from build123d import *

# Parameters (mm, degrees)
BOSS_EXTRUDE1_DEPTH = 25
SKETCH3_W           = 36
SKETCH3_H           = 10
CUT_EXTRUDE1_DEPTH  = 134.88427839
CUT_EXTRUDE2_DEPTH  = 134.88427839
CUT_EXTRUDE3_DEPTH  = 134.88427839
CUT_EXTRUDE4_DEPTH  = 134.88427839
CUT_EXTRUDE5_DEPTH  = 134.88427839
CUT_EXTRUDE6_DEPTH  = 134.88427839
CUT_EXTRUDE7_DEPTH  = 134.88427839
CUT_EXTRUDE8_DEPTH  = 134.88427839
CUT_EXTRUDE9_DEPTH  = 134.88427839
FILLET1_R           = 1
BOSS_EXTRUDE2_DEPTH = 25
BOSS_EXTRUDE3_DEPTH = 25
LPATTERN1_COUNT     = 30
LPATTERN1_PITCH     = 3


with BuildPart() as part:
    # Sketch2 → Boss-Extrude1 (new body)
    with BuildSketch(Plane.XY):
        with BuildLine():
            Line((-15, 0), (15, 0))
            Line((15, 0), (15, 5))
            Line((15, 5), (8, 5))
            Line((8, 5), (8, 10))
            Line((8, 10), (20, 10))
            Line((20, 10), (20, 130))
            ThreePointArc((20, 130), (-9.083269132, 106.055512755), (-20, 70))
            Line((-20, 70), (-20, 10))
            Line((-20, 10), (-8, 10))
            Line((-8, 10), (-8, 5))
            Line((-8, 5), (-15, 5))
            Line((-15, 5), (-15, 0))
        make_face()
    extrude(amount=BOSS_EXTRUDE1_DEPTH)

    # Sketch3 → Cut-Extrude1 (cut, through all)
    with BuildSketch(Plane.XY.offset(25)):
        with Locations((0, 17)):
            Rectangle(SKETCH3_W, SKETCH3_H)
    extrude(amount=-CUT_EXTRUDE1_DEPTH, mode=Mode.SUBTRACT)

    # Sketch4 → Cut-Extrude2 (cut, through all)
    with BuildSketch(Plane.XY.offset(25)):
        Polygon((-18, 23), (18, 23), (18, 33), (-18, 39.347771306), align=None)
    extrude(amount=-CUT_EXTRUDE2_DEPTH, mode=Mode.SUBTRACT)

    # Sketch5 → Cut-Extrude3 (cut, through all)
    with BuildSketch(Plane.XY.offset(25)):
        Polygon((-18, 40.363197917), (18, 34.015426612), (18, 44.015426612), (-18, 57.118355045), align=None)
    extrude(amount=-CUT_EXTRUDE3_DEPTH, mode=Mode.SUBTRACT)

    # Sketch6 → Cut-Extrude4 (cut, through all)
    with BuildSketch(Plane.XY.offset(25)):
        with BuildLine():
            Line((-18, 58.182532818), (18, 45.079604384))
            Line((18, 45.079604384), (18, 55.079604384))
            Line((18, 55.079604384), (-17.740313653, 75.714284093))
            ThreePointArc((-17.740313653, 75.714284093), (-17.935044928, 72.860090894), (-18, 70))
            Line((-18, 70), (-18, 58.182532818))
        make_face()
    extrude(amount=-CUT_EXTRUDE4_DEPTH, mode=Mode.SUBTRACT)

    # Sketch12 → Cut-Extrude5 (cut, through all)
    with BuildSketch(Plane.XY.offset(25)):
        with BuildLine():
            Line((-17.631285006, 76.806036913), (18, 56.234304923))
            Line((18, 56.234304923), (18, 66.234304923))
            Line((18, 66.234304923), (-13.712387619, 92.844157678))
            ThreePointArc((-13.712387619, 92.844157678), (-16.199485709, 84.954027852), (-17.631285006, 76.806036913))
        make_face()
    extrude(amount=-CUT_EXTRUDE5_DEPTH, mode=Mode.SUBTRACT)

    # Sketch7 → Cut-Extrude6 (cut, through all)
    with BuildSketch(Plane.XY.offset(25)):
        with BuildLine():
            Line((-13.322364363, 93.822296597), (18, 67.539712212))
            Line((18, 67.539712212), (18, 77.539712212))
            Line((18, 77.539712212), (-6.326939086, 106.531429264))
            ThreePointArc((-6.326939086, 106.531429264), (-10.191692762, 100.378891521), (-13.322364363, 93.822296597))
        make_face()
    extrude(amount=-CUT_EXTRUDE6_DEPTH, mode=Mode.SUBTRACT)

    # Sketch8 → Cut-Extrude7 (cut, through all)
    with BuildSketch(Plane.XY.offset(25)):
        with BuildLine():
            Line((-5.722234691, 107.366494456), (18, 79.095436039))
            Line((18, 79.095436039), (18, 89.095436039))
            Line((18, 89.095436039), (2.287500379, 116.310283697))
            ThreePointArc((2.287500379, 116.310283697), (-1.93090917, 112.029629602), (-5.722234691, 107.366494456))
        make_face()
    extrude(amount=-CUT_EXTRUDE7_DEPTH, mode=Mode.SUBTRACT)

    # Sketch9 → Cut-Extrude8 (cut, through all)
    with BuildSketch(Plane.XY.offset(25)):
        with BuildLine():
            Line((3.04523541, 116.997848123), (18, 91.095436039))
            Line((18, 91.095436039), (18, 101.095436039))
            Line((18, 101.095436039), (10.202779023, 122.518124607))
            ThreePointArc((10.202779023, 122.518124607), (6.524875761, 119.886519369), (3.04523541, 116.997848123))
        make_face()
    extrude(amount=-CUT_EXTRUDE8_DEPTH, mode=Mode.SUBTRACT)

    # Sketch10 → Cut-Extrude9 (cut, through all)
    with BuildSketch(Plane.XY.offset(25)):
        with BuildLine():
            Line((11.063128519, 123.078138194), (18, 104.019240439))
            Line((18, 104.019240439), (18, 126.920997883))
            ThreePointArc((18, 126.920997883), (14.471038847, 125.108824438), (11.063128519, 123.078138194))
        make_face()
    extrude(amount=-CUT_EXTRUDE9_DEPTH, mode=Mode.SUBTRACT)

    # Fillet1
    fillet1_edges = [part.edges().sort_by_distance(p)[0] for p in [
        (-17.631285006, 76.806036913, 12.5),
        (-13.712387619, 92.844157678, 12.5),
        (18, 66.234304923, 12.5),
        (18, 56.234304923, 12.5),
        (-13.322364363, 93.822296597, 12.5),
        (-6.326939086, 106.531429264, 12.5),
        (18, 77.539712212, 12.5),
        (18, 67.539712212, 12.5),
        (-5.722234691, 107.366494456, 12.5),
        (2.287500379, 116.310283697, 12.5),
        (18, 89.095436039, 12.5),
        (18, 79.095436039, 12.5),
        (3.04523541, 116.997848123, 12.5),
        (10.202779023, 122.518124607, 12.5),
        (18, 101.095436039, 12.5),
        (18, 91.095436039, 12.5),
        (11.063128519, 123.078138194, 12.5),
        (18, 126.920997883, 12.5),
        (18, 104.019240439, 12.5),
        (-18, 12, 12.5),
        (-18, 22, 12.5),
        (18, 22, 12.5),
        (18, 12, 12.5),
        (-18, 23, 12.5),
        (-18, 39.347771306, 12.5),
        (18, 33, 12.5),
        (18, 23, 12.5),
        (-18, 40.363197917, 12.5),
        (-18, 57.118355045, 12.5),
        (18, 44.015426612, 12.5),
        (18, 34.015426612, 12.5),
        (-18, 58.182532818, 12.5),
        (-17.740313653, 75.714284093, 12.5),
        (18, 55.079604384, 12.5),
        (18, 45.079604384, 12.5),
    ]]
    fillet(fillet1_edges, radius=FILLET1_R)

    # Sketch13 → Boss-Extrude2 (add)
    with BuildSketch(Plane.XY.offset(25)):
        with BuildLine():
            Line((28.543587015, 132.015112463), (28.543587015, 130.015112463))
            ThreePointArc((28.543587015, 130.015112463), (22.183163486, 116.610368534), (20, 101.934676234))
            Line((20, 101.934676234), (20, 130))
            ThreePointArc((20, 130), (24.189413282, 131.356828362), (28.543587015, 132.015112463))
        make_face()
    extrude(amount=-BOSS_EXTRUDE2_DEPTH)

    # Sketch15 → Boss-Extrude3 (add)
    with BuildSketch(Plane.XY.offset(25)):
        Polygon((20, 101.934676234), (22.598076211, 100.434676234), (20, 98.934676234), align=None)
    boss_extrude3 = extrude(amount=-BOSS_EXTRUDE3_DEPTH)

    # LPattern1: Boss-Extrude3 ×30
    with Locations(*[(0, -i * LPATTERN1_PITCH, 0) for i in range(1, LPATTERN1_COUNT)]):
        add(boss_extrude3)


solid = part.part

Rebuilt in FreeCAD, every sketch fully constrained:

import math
import FreeCAD as App
import Part
import Sketcher

V = App.Vector
Q = App.Units.Quantity


def edges_at(feature, points):
    """Names of the edges that pass closest to the given points."""
    edges = feature.Shape.Edges
    near = lambda p: min(range(len(edges)), key=lambda i: edges[i].distToShape(Part.Vertex(*p))[0])
    return sorted({f"Edge{near(p) + 1}" for p in points})

doc = App.newDocument("Part")
body = doc.addObject("PartDesign::Body", "Body")

sketch1 = body.newObject("Sketcher::SketchObject", "Sketch")
sketch1.AttachmentSupport = (doc.getObject("XY_Plane"), [""])
sketch1.MapMode = "FlatFace"
sketch1.addGeometry(Part.LineSegment(V(-15, 0, 0), V(15, 0, 0)), False)
sketch1.addGeometry(Part.LineSegment(V(15, 0, 0), V(15, 5, 0)), False)
sketch1.addGeometry(Part.LineSegment(V(15, 5, 0), V(8, 5, 0)), False)
sketch1.addGeometry(Part.LineSegment(V(8, 5, 0), V(8, 10, 0)), False)
sketch1.addGeometry(Part.LineSegment(V(8, 10, 0), V(20, 10, 0)), False)
sketch1.addGeometry(Part.LineSegment(V(20, 10, 0), V(20, 130, 0)), False)
sketch1.addGeometry(Part.ArcOfCircle(Part.Circle(V(45, 70, 0), V(0, 0, 1), 65), math.radians(113), math.radians(180)), False)
sketch1.addGeometry(Part.LineSegment(V(-20, 70, 0), V(-20, 10, 0)), False)
sketch1.addGeometry(Part.LineSegment(V(-20, 10, 0), V(-8, 10, 0)), False)
sketch1.addGeometry(Part.LineSegment(V(-8, 10, 0), V(-8, 5, 0)), False)
sketch1.addGeometry(Part.LineSegment(V(-8, 5, 0), V(-15, 5, 0)), False)
sketch1.addGeometry(Part.LineSegment(V(-15, 5, 0), V(-15, 0, 0)), False)
sketch1.addConstraint(Sketcher.Constraint("Coincident", 0, 2, 1, 1))
sketch1.addConstraint(Sketcher.Constraint("Coincident", 1, 2, 2, 1))
sketch1.addConstraint(Sketcher.Constraint("Coincident", 2, 2, 3, 1))
sketch1.addConstraint(Sketcher.Constraint("Coincident", 3, 2, 4, 1))
sketch1.addConstraint(Sketcher.Constraint("Coincident", 4, 2, 5, 1))
sketch1.addConstraint(Sketcher.Constraint("Coincident", 5, 2, 6, 1))
sketch1.addConstraint(Sketcher.Constraint("Tangent", 6, 2, 7, 1))
sketch1.addConstraint(Sketcher.Constraint("Coincident", 7, 2, 8, 1))
sketch1.addConstraint(Sketcher.Constraint("Coincident", 8, 2, 9, 1))
sketch1.addConstraint(Sketcher.Constraint("Coincident", 9, 2, 10, 1))
sketch1.addConstraint(Sketcher.Constraint("Coincident", 10, 2, 11, 1))
sketch1.addConstraint(Sketcher.Constraint("Coincident", 11, 2, 0, 1))
sketch1.addConstraint(Sketcher.Constraint("Horizontal", 0))
sketch1.addConstraint(Sketcher.Constraint("Vertical", 1))
sketch1.addConstraint(Sketcher.Constraint("Horizontal", 2))
sketch1.addConstraint(Sketcher.Constraint("Vertical", 3))
sketch1.addConstraint(Sketcher.Constraint("Horizontal", 4))
sketch1.addConstraint(Sketcher.Constraint("Vertical", 5))
sketch1.addConstraint(Sketcher.Constraint("Vertical", 7))
sketch1.addConstraint(Sketcher.Constraint("Horizontal", 8))
sketch1.addConstraint(Sketcher.Constraint("Vertical", 9))
sketch1.addConstraint(Sketcher.Constraint("Horizontal", 10))
sketch1.addConstraint(Sketcher.Constraint("Vertical", 11))
sketch1.addConstraint(Sketcher.Constraint("Symmetric", 0, 2, 11, 2, -1, 1))
sketch1.addConstraint(Sketcher.Constraint("Symmetric", 4, 2, 7, 2, -2))
sketch1.addConstraint(Sketcher.Constraint("Symmetric", 2, 2, 9, 2, -2))
sketch1.addConstraint(Sketcher.Constraint("Equal", 1, 3))
sketch1.addConstraint(Sketcher.Constraint("Radius", 6, 65.0))
sketch1.addConstraint(Sketcher.Constraint("DistanceX", 0, 1, 0, 2, 30.0))
sketch1.addConstraint(Sketcher.Constraint("DistanceX", 2, 2, 2, 1, 7.0))
sketch1.addConstraint(Sketcher.Constraint("DistanceX", 4, 1, 4, 2, 12.0))
sketch1.addConstraint(Sketcher.Constraint("DistanceY", 1, 1, 1, 2, 5.0))
sketch1.addConstraint(Sketcher.Constraint("DistanceY", 5, 1, 5, 2, 120.0))
pad1 = body.newObject("PartDesign::Pad", "Pad")
pad1.Profile = sketch1
pad1.Length = 25

sketch2 = body.newObject("Sketcher::SketchObject", "Sketch001")
sketch2.AttachmentSupport = (doc.getObject("XY_Plane"), [""])
sketch2.MapMode = "FlatFace"
sketch2.AttachmentOffset = App.Placement(V(0, 0, 25), App.Rotation())
sketch2.addGeometry(Part.LineSegment(V(-18, 22, 0), V(-18, 12, 0)), False)
sketch2.addGeometry(Part.LineSegment(V(-18, 12, 0), V(18, 12, 0)), False)
sketch2.addGeometry(Part.LineSegment(V(18, 12, 0), V(18, 22, 0)), False)
sketch2.addGeometry(Part.LineSegment(V(18, 22, 0), V(-18, 22, 0)), False)
sketch2.addConstraint(Sketcher.Constraint("Coincident", 0, 2, 1, 1))
sketch2.addConstraint(Sketcher.Constraint("Coincident", 1, 2, 2, 1))
sketch2.addConstraint(Sketcher.Constraint("Coincident", 2, 2, 3, 1))
sketch2.addConstraint(Sketcher.Constraint("Coincident", 3, 2, 0, 1))
sketch2.addConstraint(Sketcher.Constraint("Vertical", 0))
sketch2.addConstraint(Sketcher.Constraint("Horizontal", 1))
sketch2.addConstraint(Sketcher.Constraint("Vertical", 2))
sketch2.addConstraint(Sketcher.Constraint("Horizontal", 3))
sketch2.addConstraint(Sketcher.Constraint("DistanceX", 1, 1, 1, 2, 36.0))
sketch2.addConstraint(Sketcher.Constraint("DistanceY", 0, 2, 0, 1, 10.0))
sketch2.addConstraint(Sketcher.Constraint("DistanceX", 0, 2, -1, 1, 18.0))
sketch2.addConstraint(Sketcher.Constraint("DistanceY", -1, 1, 0, 2, 12.0))
pocket1 = body.newObject("PartDesign::Pocket", "Pocket")
pocket1.Profile = sketch2
pocket1.Type = "ThroughAll"

sketch3 = body.newObject("Sketcher::SketchObject", "Sketch002")
sketch3.AttachmentSupport = (doc.getObject("XY_Plane"), [""])
sketch3.MapMode = "FlatFace"
sketch3.AttachmentOffset = App.Placement(V(0, 0, 25), App.Rotation())
sketch3.addGeometry(Part.LineSegment(V(-18, 23, 0), V(18, 23, 0)), False)
sketch3.addGeometry(Part.LineSegment(V(18, 23, 0), V(18, 33, 0)), False)
sketch3.addGeometry(Part.LineSegment(V(18, 33, 0), V(-18, 39, 0)), False)
sketch3.addGeometry(Part.LineSegment(V(-18, 39, 0), V(-18, 23, 0)), False)
sketch3.addConstraint(Sketcher.Constraint("Coincident", 0, 2, 1, 1))
sketch3.addConstraint(Sketcher.Constraint("Coincident", 1, 2, 2, 1))
sketch3.addConstraint(Sketcher.Constraint("Coincident", 2, 2, 3, 1))
sketch3.addConstraint(Sketcher.Constraint("Coincident", 3, 2, 0, 1))
sketch3.addConstraint(Sketcher.Constraint("Horizontal", 0))
sketch3.addConstraint(Sketcher.Constraint("Vertical", 1))
sketch3.addConstraint(Sketcher.Constraint("Vertical", 3))
sketch3.addConstraint(Sketcher.Constraint("DistanceX", 0, 1, 0, 2, 36.0))
sketch3.addConstraint(Sketcher.Constraint("DistanceY", 1, 1, 1, 2, 10.0))
sketch3.addConstraint(Sketcher.Constraint("Angle", 2, Q("170 deg")))
sketch3.addConstraint(Sketcher.Constraint("DistanceX", -1, 1, 0, 2, 18.0))
sketch3.addConstraint(Sketcher.Constraint("DistanceY", -1, 1, 0, 2, 23.0))
pocket2 = body.newObject("PartDesign::Pocket", "Pocket001")
pocket2.Profile = sketch3
pocket2.Type = "ThroughAll"

sketch4 = body.newObject("Sketcher::SketchObject", "Sketch003")
sketch4.AttachmentSupport = (doc.getObject("XY_Plane"), [""])
sketch4.MapMode = "FlatFace"
sketch4.AttachmentOffset = App.Placement(V(0, 0, 25), App.Rotation())
sketch4.addGeometry(Part.LineSegment(V(-18, 40, 0), V(18, 34, 0)), False)
sketch4.addGeometry(Part.LineSegment(V(18, 34, 0), V(18, 44, 0)), False)
sketch4.addGeometry(Part.LineSegment(V(18, 44, 0), V(-18, 57, 0)), False)
sketch4.addGeometry(Part.LineSegment(V(-18, 57, 0), V(-18, 40, 0)), False)
sketch4.addConstraint(Sketcher.Constraint("Coincident", 0, 2, 1, 1))
sketch4.addConstraint(Sketcher.Constraint("Coincident", 1, 2, 2, 1))
sketch4.addConstraint(Sketcher.Constraint("Coincident", 2, 2, 3, 1))
sketch4.addConstraint(Sketcher.Constraint("Coincident", 3, 2, 0, 1))
sketch4.addConstraint(Sketcher.Constraint("Vertical", 1))
sketch4.addConstraint(Sketcher.Constraint("Vertical", 3))
sketch4.addConstraint(Sketcher.Constraint("DistanceY", 1, 1, 1, 2, 10.0))
sketch4.addConstraint(Sketcher.Constraint("Angle", 0, Q("-10 deg")))
sketch4.addConstraint(Sketcher.Constraint("Angle", 2, Q("160 deg")))
sketch4.addConstraint(Sketcher.Constraint("DistanceX", -1, 1, 0, 2, 18.0))
sketch4.addConstraint(Sketcher.Constraint("DistanceX", 2, 2, -1, 1, 18.0))
sketch4.addConstraint(Sketcher.Constraint("DistanceY", -1, 1, 0, 2, 34.015427))
pocket3 = body.newObject("PartDesign::Pocket", "Pocket002")
pocket3.Profile = sketch4
pocket3.Type = "ThroughAll"

sketch5 = body.newObject("Sketcher::SketchObject", "Sketch004")
sketch5.AttachmentSupport = (doc.getObject("XY_Plane"), [""])
sketch5.MapMode = "FlatFace"
sketch5.AttachmentOffset = App.Placement(V(0, 0, 25), App.Rotation())
sketch5.addGeometry(Part.LineSegment(V(-18, 58, 0), V(18, 45, 0)), False)
sketch5.addGeometry(Part.LineSegment(V(18, 45, 0), V(18, 55, 0)), False)
sketch5.addGeometry(Part.LineSegment(V(18, 55, 0), V(-18, 76, 0)), False)
sketch5.addGeometry(Part.ArcOfCircle(Part.Circle(V(45, 70, 0), V(0, 0, 1), 63), math.radians(174.8), math.radians(180)), False)
sketch5.addGeometry(Part.LineSegment(V(-18, 70, 0), V(-18, 58, 0)), False)
sketch5.addConstraint(Sketcher.Constraint("Coincident", 0, 2, 1, 1))
sketch5.addConstraint(Sketcher.Constraint("Coincident", 1, 2, 2, 1))
sketch5.addConstraint(Sketcher.Constraint("Coincident", 2, 2, 3, 1))
sketch5.addConstraint(Sketcher.Constraint("Tangent", 3, 2, 4, 1))
sketch5.addConstraint(Sketcher.Constraint("Coincident", 4, 2, 0, 1))
sketch5.addConstraint(Sketcher.Constraint("Vertical", 1))
sketch5.addConstraint(Sketcher.Constraint("Vertical", 4))
sketch5.addConstraint(Sketcher.Constraint("Radius", 3, 63.0))
sketch5.addConstraint(Sketcher.Constraint("DistanceY", 1, 1, 1, 2, 10.0))
sketch5.addConstraint(Sketcher.Constraint("Angle", 0, Q("-20 deg")))
sketch5.addConstraint(Sketcher.Constraint("Angle", 2, Q("150 deg")))
sketch5.addConstraint(Sketcher.Constraint("DistanceX", -1, 1, 3, 3, 45.0))
sketch5.addConstraint(Sketcher.Constraint("DistanceY", -1, 1, 3, 3, 70.0))
sketch5.addConstraint(Sketcher.Constraint("DistanceX", -1, 1, 0, 2, 18.0))
sketch5.addConstraint(Sketcher.Constraint("Distance", 2, 41.269359))
pocket4 = body.newObject("PartDesign::Pocket", "Pocket003")
pocket4.Profile = sketch5
pocket4.Type = "ThroughAll"

sketch6 = body.newObject("Sketcher::SketchObject", "Sketch005")
sketch6.AttachmentSupport = (doc.getObject("XY_Plane"), [""])
sketch6.MapMode = "FlatFace"
sketch6.AttachmentOffset = App.Placement(V(0, 0, 25), App.Rotation())
sketch6.addGeometry(Part.LineSegment(V(-18, 77, 0), V(18, 56, 0)), False)
sketch6.addGeometry(Part.LineSegment(V(18, 56, 0), V(18, 66, 0)), False)
sketch6.addGeometry(Part.LineSegment(V(18, 66, 0), V(-14, 93, 0)), False)
sketch6.addGeometry(Part.ArcOfCircle(Part.Circle(V(45, 70, 0), V(0, 0, 1), 63), math.radians(158.74), math.radians(173.8)), False)
sketch6.addConstraint(Sketcher.Constraint("Coincident", 0, 2, 1, 1))
sketch6.addConstraint(Sketcher.Constraint("Coincident", 1, 2, 2, 1))
sketch6.addConstraint(Sketcher.Constraint("Coincident", 2, 2, 3, 1))
sketch6.addConstraint(Sketcher.Constraint("Coincident", 3, 2, 0, 1))
sketch6.addConstraint(Sketcher.Constraint("Vertical", 1))
sketch6.addConstraint(Sketcher.Constraint("Radius", 3, 63.0))
sketch6.addConstraint(Sketcher.Constraint("DistanceY", 1, 1, 1, 2, 10.0))
sketch6.addConstraint(Sketcher.Constraint("Angle", 0, Q("-30 deg")))
sketch6.addConstraint(Sketcher.Constraint("Angle", 2, Q("140 deg")))
sketch6.addConstraint(Sketcher.Constraint("DistanceX", -1, 1, 3, 3, 45.0))
sketch6.addConstraint(Sketcher.Constraint("DistanceY", -1, 1, 3, 3, 70.0))
sketch6.addConstraint(Sketcher.Constraint("DistanceX", -1, 1, 0, 2, 18.0))
sketch6.addConstraint(Sketcher.Constraint("Distance", 2, 41.397582))
pocket5 = body.newObject("PartDesign::Pocket", "Pocket004")
pocket5.Profile = sketch6
pocket5.Type = "ThroughAll"

sketch7 = body.newObject("Sketcher::SketchObject", "Sketch006")
sketch7.AttachmentSupport = (doc.getObject("XY_Plane"), [""])
sketch7.MapMode = "FlatFace"
sketch7.AttachmentOffset = App.Placement(V(0, 0, 25), App.Rotation())
sketch7.addGeometry(Part.LineSegment(V(-13, 94, 0), V(18, 68, 0)), False)
sketch7.addGeometry(Part.LineSegment(V(18, 68, 0), V(18, 78, 0)), False)
sketch7.addGeometry(Part.LineSegment(V(18, 78, 0), V(-6, 107, 0)), False)
sketch7.addGeometry(Part.ArcOfCircle(Part.Circle(V(45, 70, 0), V(0, 0, 1), 63), math.radians(144.56), math.radians(157.78)), False)
sketch7.addConstraint(Sketcher.Constraint("Coincident", 0, 2, 1, 1))
sketch7.addConstraint(Sketcher.Constraint("Coincident", 1, 2, 2, 1))
sketch7.addConstraint(Sketcher.Constraint("Coincident", 2, 2, 3, 1))
sketch7.addConstraint(Sketcher.Constraint("Coincident", 3, 2, 0, 1))
sketch7.addConstraint(Sketcher.Constraint("Vertical", 1))
sketch7.addConstraint(Sketcher.Constraint("Radius", 3, 63.0))
sketch7.addConstraint(Sketcher.Constraint("DistanceY", 1, 1, 1, 2, 10.0))
sketch7.addConstraint(Sketcher.Constraint("Angle", 0, Q("-40 deg")))
sketch7.addConstraint(Sketcher.Constraint("Angle", 2, Q("130 deg")))
sketch7.addConstraint(Sketcher.Constraint("DistanceX", -1, 1, 3, 3, 45.0))
sketch7.addConstraint(Sketcher.Constraint("DistanceY", -1, 1, 3, 3, 70.0))
sketch7.addConstraint(Sketcher.Constraint("DistanceX", -1, 1, 0, 2, 18.0))
sketch7.addConstraint(Sketcher.Constraint("Distance", 2, 37.845999))
pocket6 = body.newObject("PartDesign::Pocket", "Pocket005")
pocket6.Profile = sketch7
pocket6.Type = "ThroughAll"

sketch8 = body.newObject("Sketcher::SketchObject", "Sketch007")
sketch8.AttachmentSupport = (doc.getObject("XY_Plane"), [""])
sketch8.MapMode = "FlatFace"
sketch8.AttachmentOffset = App.Placement(V(0, 0, 25), App.Rotation())
sketch8.addGeometry(Part.LineSegment(V(-6, 107, 0), V(18, 79, 0)), False)
sketch8.addGeometry(Part.LineSegment(V(18, 79, 0), V(18, 89, 0)), False)
sketch8.addGeometry(Part.LineSegment(V(18, 89, 0), V(2, 116, 0)), False)
sketch8.addGeometry(Part.ArcOfCircle(Part.Circle(V(45, 70, 0), V(0, 0, 1), 63), math.radians(132.69), math.radians(143.62)), False)
sketch8.addConstraint(Sketcher.Constraint("Coincident", 0, 2, 1, 1))
sketch8.addConstraint(Sketcher.Constraint("Coincident", 1, 2, 2, 1))
sketch8.addConstraint(Sketcher.Constraint("Coincident", 2, 2, 3, 1))
sketch8.addConstraint(Sketcher.Constraint("Coincident", 3, 2, 0, 1))
sketch8.addConstraint(Sketcher.Constraint("Vertical", 1))
sketch8.addConstraint(Sketcher.Constraint("Radius", 3, 63.0))
sketch8.addConstraint(Sketcher.Constraint("DistanceY", 1, 1, 1, 2, 10.0))
sketch8.addConstraint(Sketcher.Constraint("Angle", 0, Q("-50 deg")))
sketch8.addConstraint(Sketcher.Constraint("Angle", 2, Q("120 deg")))
sketch8.addConstraint(Sketcher.Constraint("DistanceX", -1, 1, 3, 3, 45.0))
sketch8.addConstraint(Sketcher.Constraint("DistanceY", -1, 1, 3, 3, 70.0))
sketch8.addConstraint(Sketcher.Constraint("DistanceX", -1, 1, 0, 2, 18.0))
sketch8.addConstraint(Sketcher.Constraint("Distance", 2, 31.424999))
pocket7 = body.newObject("PartDesign::Pocket", "Pocket006")
pocket7.Profile = sketch8
pocket7.Type = "ThroughAll"

sketch9 = body.newObject("Sketcher::SketchObject", "Sketch008")
sketch9.AttachmentSupport = (doc.getObject("XY_Plane"), [""])
sketch9.MapMode = "FlatFace"
sketch9.AttachmentOffset = App.Placement(V(0, 0, 25), App.Rotation())
sketch9.addGeometry(Part.LineSegment(V(3, 117, 0), V(18, 91, 0)), False)
sketch9.addGeometry(Part.LineSegment(V(18, 91, 0), V(18, 101, 0)), False)
sketch9.addGeometry(Part.LineSegment(V(18, 101, 0), V(10, 123, 0)), False)
sketch9.addGeometry(Part.ArcOfCircle(Part.Circle(V(45, 70, 0), V(0, 0, 1), 63), math.radians(123.53), math.radians(131.76)), False)
sketch9.addConstraint(Sketcher.Constraint("Coincident", 0, 2, 1, 1))
sketch9.addConstraint(Sketcher.Constraint("Coincident", 1, 2, 2, 1))
sketch9.addConstraint(Sketcher.Constraint("Coincident", 2, 2, 3, 1))
sketch9.addConstraint(Sketcher.Constraint("Coincident", 3, 2, 0, 1))
sketch9.addConstraint(Sketcher.Constraint("Vertical", 1))
sketch9.addConstraint(Sketcher.Constraint("Radius", 3, 63.0))
sketch9.addConstraint(Sketcher.Constraint("DistanceY", 1, 1, 1, 2, 10.0))
sketch9.addConstraint(Sketcher.Constraint("Angle", 0, Q("-60 deg")))
sketch9.addConstraint(Sketcher.Constraint("Angle", 2, Q("110 deg")))
sketch9.addConstraint(Sketcher.Constraint("DistanceX", -1, 1, 3, 3, 45.0))
sketch9.addConstraint(Sketcher.Constraint("DistanceY", -1, 1, 3, 3, 70.0))
sketch9.addConstraint(Sketcher.Constraint("DistanceX", -1, 1, 0, 2, 18.0))
sketch9.addConstraint(Sketcher.Constraint("Distance", 0, 29.909529))
pocket8 = body.newObject("PartDesign::Pocket", "Pocket007")
pocket8.Profile = sketch9
pocket8.Type = "ThroughAll"

sketch10 = body.newObject("Sketcher::SketchObject", "Sketch009")
sketch10.AttachmentSupport = (doc.getObject("XY_Plane"), [""])
sketch10.MapMode = "FlatFace"
sketch10.AttachmentOffset = App.Placement(V(0, 0, 25), App.Rotation())
sketch10.addGeometry(Part.LineSegment(V(11, 123, 0), V(18, 104, 0)), False)
sketch10.addGeometry(Part.LineSegment(V(18, 104, 0), V(18, 127, 0)), False)
sketch10.addGeometry(Part.ArcOfCircle(Part.Circle(V(45, 70, 0), V(0, 0, 1), 63), math.radians(115.38), math.radians(122.59)), False)
sketch10.addConstraint(Sketcher.Constraint("Coincident", 0, 2, 1, 1))
sketch10.addConstraint(Sketcher.Constraint("Coincident", 1, 2, 2, 1))
sketch10.addConstraint(Sketcher.Constraint("Coincident", 2, 2, 0, 1))
sketch10.addConstraint(Sketcher.Constraint("Vertical", 1))
sketch10.addConstraint(Sketcher.Constraint("Radius", 2, 63.0))
sketch10.addConstraint(Sketcher.Constraint("Angle", 0, Q("-70 deg")))
sketch10.addConstraint(Sketcher.Constraint("DistanceX", -1, 1, 2, 3, 45.0))
sketch10.addConstraint(Sketcher.Constraint("DistanceY", -1, 1, 2, 3, 70.0))
sketch10.addConstraint(Sketcher.Constraint("DistanceX", -1, 1, 0, 2, 18.0))
sketch10.addConstraint(Sketcher.Constraint("DistanceY", 1, 1, 1, 2, 22.901757))
pocket9 = body.newObject("PartDesign::Pocket", "Pocket008")
pocket9.Profile = sketch10
pocket9.Type = "ThroughAll"
doc.recompute()

fillet = body.newObject("PartDesign::Fillet", "Fillet")
fillet.Base = (pocket9, edges_at(pocket9, [
    (-17.631, 76.806, 12.5),
    (-13.712, 92.844, 12.5),
    (18, 66.234, 12.5),
    (18, 56.234, 12.5),
    (-13.322, 93.822, 12.5),
    (-6.327, 106.531, 12.5),
    (18, 77.54, 12.5),
    (18, 67.54, 12.5),
    (-5.722, 107.366, 12.5),
    (2.288, 116.31, 12.5),
    (18, 89.095, 12.5),
    (18, 79.095, 12.5),
    (3.045, 116.998, 12.5),
    (10.203, 122.518, 12.5),
    (18, 101.095, 12.5),
    (18, 91.095, 12.5),
    (11.063, 123.078, 12.5),
    (18, 126.921, 12.5),
    (18, 104.019, 12.5),
    (-18, 12, 12.5),
    (-18, 22, 12.5),
    (18, 22, 12.5),
    (18, 12, 12.5),
    (-18, 23, 12.5),
    (-18, 39.348, 12.5),
    (18, 33, 12.5),
    (18, 23, 12.5),
    (-18, 40.363, 12.5),
    (-18, 57.118, 12.5),
    (18, 44.015, 12.5),
    (18, 34.015, 12.5),
    (-18, 58.183, 12.5),
    (-17.74, 75.714, 12.5),
    (18, 55.08, 12.5),
    (18, 45.08, 12.5),
]))
fillet.Radius = 1

sketch11 = body.newObject("Sketcher::SketchObject", "Sketch010")
sketch11.AttachmentSupport = (doc.getObject("XY_Plane"), [""])
sketch11.MapMode = "FlatFace"
sketch11.AttachmentOffset = App.Placement(V(0, 0, 25), App.Rotation())
sketch11.addGeometry(Part.LineSegment(V(28.5, 130, 0), V(28.5, 132, 0)), False)
sketch11.addGeometry(Part.ArcOfCircle(Part.Circle(V(30.4, 105.1, 0), V(0, 0, 1), 27), math.radians(93.92), math.radians(112.62)), False)
sketch11.addGeometry(Part.LineSegment(V(20, 130, 0), V(20, 101.9, 0)), False)
sketch11.addGeometry(Part.ArcOfCircle(Part.Circle(V(70.4, 101.9, 0), V(0, 0, 1), 50.4), math.radians(146), math.radians(180)), False)
sketch11.addConstraint(Sketcher.Constraint("Coincident", 0, 2, 1, 1))
sketch11.addConstraint(Sketcher.Constraint("Coincident", 1, 2, 2, 1))
sketch11.addConstraint(Sketcher.Constraint("Tangent", 2, 2, 3, 2))
sketch11.addConstraint(Sketcher.Constraint("Coincident", 3, 1, 0, 1))
sketch11.addConstraint(Sketcher.Constraint("Vertical", 0))
sketch11.addConstraint(Sketcher.Constraint("Vertical", 2))
sketch11.addConstraint(Sketcher.Constraint("DistanceY", 0, 1, 0, 2, 2.0))
sketch11.addConstraint(Sketcher.Constraint("DistanceX", -1, 1, 1, 2, 20.0))
sketch11.addConstraint(Sketcher.Constraint("DistanceY", -1, 1, 1, 2, 130.0))
sketch11.addConstraint(Sketcher.Constraint("Radius", 1, 27.019438))
sketch11.addConstraint(Sketcher.Constraint("Radius", 3, 50.418154))
sketch11.addConstraint(Sketcher.Constraint("DistanceY", 2, 2, 2, 1, 28.065324))
sketch11.addConstraint(Sketcher.Constraint("DistanceX", -1, 1, 1, 3, 30.392092))
pad2 = body.newObject("PartDesign::Pad", "Pad001")
pad2.Profile = sketch11
pad2.Length = 25
pad2.Reversed = True

sketch12 = body.newObject("Sketcher::SketchObject", "Sketch011")
sketch12.AttachmentSupport = (doc.getObject("XY_Plane"), [""])
sketch12.MapMode = "FlatFace"
sketch12.AttachmentOffset = App.Placement(V(0, 0, 25), App.Rotation())
sketch12.addGeometry(Part.LineSegment(V(22.6, 100.4, 0), V(20, 101.9, 0)), False)
sketch12.addGeometry(Part.LineSegment(V(20, 101.9, 0), V(20, 98.9, 0)), False)
sketch12.addGeometry(Part.LineSegment(V(20, 98.9, 0), V(22.6, 100.4, 0)), False)
sketch12.addConstraint(Sketcher.Constraint("Coincident", 0, 2, 1, 1))
sketch12.addConstraint(Sketcher.Constraint("Coincident", 1, 2, 2, 1))
sketch12.addConstraint(Sketcher.Constraint("Coincident", 2, 2, 0, 1))
sketch12.addConstraint(Sketcher.Constraint("Vertical", 1))
sketch12.addConstraint(Sketcher.Constraint("Equal", 0, 2))
sketch12.addConstraint(Sketcher.Constraint("DistanceY", 1, 2, 1, 1, 3.0))
sketch12.addConstraint(Sketcher.Constraint("Angle", 0, Q("150 deg")))
sketch12.addConstraint(Sketcher.Constraint("DistanceX", -1, 1, 0, 2, 20.0))
sketch12.addConstraint(Sketcher.Constraint("DistanceY", -1, 1, 0, 2, 101.934676))
pad3 = body.newObject("PartDesign::Pad", "Pad002")
pad3.Profile = sketch12
pad3.Length = 25
pad3.Reversed = True
doc.recompute()

linearpattern = body.newObject("PartDesign::LinearPattern", "LinearPattern")
linearpattern.Originals = [pad3]
linearpattern.Direction = (doc.getObject("Y_Axis"), [""])
linearpattern.Mode = "offset"
linearpattern.Offset = 3
linearpattern.Occurrences = 30
linearpattern.Reversed = True
body.Tip = linearpattern

doc.recompute()
